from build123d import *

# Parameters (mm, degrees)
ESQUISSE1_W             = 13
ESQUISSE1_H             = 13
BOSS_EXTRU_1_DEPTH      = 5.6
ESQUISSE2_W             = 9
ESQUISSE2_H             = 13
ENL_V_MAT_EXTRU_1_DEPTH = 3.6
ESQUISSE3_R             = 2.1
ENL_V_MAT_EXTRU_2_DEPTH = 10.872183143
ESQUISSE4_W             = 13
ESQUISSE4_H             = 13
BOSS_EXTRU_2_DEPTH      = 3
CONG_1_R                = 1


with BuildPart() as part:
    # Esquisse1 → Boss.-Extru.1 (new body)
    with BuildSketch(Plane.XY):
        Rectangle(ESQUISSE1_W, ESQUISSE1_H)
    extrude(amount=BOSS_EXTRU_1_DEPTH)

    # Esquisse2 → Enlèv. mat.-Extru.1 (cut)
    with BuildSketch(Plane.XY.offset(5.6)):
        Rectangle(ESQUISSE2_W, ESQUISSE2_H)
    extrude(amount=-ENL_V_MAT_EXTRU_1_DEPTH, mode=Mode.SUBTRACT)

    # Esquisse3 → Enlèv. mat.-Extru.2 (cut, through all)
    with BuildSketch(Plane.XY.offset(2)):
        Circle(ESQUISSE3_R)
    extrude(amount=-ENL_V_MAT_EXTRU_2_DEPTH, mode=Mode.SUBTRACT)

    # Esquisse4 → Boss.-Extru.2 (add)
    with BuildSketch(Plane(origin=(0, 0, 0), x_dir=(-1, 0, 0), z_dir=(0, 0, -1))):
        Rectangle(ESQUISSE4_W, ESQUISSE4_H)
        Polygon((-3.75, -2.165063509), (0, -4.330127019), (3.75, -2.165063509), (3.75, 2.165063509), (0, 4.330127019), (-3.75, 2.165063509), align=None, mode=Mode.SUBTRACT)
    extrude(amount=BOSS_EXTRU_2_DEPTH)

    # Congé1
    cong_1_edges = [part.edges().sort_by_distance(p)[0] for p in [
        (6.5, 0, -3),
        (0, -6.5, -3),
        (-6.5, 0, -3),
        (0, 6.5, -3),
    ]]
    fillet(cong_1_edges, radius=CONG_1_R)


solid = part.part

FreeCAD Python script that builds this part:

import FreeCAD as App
import Part
import Sketcher
from FreeCAD import Vector
Q = App.Units.Quantity


def edges_at(feature, points):
    """Names of the edges that pass closest to the given points."""
    edges = feature.Shape.Edges
    near = lambda p: min(range(len(edges)), key=lambda i: edges[i].distToShape(Part.Vertex(*p))[0])
    return sorted({f"Edge{near(p) + 1}" for p in points})

doc = App.newDocument("Part")
body = doc.addObject("PartDesign::Body", "Body")

sketch1 = body.newObject("Sketcher::SketchObject", "Sketch")
sketch1.AttachmentSupport = (doc.getObject("XY_Plane"), [""])
sketch1.MapMode = "FlatFace"
sketch1.addGeometry([
    Part.LineSegment(Vector(-6, 6, 0), Vector(-6, -6, 0)),
    Part.LineSegment(Vector(-6, -6, 0), Vector(6, -6, 0)),
    Part.LineSegment(Vector(6, -6, 0), Vector(6, 6, 0)),
    Part.LineSegment(Vector(6, 6, 0), Vector(-6, 6, 0)),
], False)
sketch1.addConstraint([
    Sketcher.Constraint("Coincident", 0, 2, 1, 1),
    Sketcher.Constraint("Coincident", 1, 2, 2, 1),
    Sketcher.Constraint("Coincident", 2, 2, 3, 1),
    Sketcher.Constraint("Coincident", 3, 2, 0, 1),
    Sketcher.Constraint("Vertical", 0),
    Sketcher.Constraint("Horizontal", 1),
    Sketcher.Constraint("Vertical", 2),
    Sketcher.Constraint("Horizontal", 3),
    Sketcher.Constraint("Symmetric", 0, 2, 2, 2, -1, 1),
    Sketcher.Constraint("Equal", 3, 0),
    Sketcher.Constraint("DistanceX", 1, 1, 1, 2, Q("13 mm")),
])
pad1 = body.newObject("PartDesign::Pad", "Pad")
pad1.Profile = sketch1
pad1.Length = 5.6

sketch2 = body.newObject("Sketcher::SketchObject", "Sketch001")
sketch2.AttachmentSupport = (doc.getObject("XY_Plane"), [""])
sketch2.MapMode = "FlatFace"
sketch2.AttachmentOffset = App.Placement(Vector(0, 0, 5.6), App.Rotation())
sketch2.addGeometry([
    Part.LineSegment(Vector(-4, 6, 0), Vector(-4, -6, 0)),
    Part.LineSegment(Vector(-4, -6, 0), Vector(4, -6, 0)),
    Part.LineSegment(Vector(4, -6, 0), Vector(4, 6, 0)),
    Part.LineSegment(Vector(4, 6, 0), Vector(-4, 6, 0)),
], False)
sketch2.addConstraint([
    Sketcher.Constraint("Coincident", 0, 2, 1, 1),
    Sketcher.Constraint("Coincident", 1, 2, 2, 1),
    Sketcher.Constraint("Coincident", 2, 2, 3, 1),
    Sketcher.Constraint("Coincident", 3, 2, 0, 1),
    Sketcher.Constraint("Vertical", 0),
    Sketcher.Constraint("Horizontal", 1),
    Sketcher.Constraint("Vertical", 2),
    Sketcher.Constraint("Horizontal", 3),
    Sketcher.Constraint("Symmetric", 0, 2, 2, 2, -1, 1),
    Sketcher.Constraint("DistanceX", 1, 1, 1, 2, Q("9 mm")),
    Sketcher.Constraint("DistanceY", 0, 2, 0, 1, Q("13 mm")),
])
pocket1 = body.newObject("PartDesign::Pocket", "Pocket")
pocket1.Profile = sketch2
pocket1.Length = 3.6

sketch3 = body.newObject("Sketcher::SketchObject", "Sketch002")
sketch3.AttachmentSupport = (doc.getObject("XY_Plane"), [""])
sketch3.MapMode = "FlatFace"
sketch3.AttachmentOffset = App.Placement(Vector(0, 0, 2), App.Rotation())
sketch3.addGeometry(Part.Circle(Vector(0, 0, 0), Vector(0, 0, 1), 2.1), False)
sketch3.addConstraint([
    Sketcher.Constraint("Coincident", 0, 3, -1, 1),
    Sketcher.Constraint("Diameter", 0, Q("4.2 mm")),
])
pocket2 = body.newObject("PartDesign::Pocket", "Pocket001")
pocket2.Profile = sketch3
pocket2.Type = "ThroughAll"

sketch4 = body.newObject("Sketcher::SketchObject", "Sketch003")
sketch4.AttachmentSupport = (doc.getObject("XY_Plane"), [""])
sketch4.MapMode = "FlatFace"
sketch4.addGeometry([
    Part.LineSegment(Vector(6.5, 6.5, 0), Vector(6.5, -6.5, 0)),
    Part.LineSegment(Vector(6.5, -6.5, 0), Vector(-6.5, -6.5, 0)),
    Part.LineSegment(Vector(-6.5, -6.5, 0), Vector(-6.5, 6.5, 0)),
    Part.LineSegment(Vector(-6.5, 6.5, 0), Vector(6.5, 6.5, 0)),
    Part.LineSegment(Vector(0, -4.3, 0), Vector(3.8, -2.2, 0)),
    Part.LineSegment(Vector(3.8, -2.2, 0), Vector(3.8, 2.2, 0)),
    Part.LineSegment(Vector(3.8, 2.2, 0), Vector(0, 4.3, 0)),
    Part.LineSegment(Vector(0, 4.3, 0), Vector(-3.8, 2.2, 0)),
    Part.LineSegment(Vector(-3.8, 2.2, 0), Vector(-3.8, -2.2, 0)),
    Part.LineSegment(Vector(-3.8, -2.2, 0), Vector(0, -4.3, 0)),
], False)
sketch4.addConstraint([
    Sketcher.Constraint("Coincident", 0, 2, 1, 1),
    Sketcher.Constraint("Coincident", 1, 2, 2, 1),
    Sketcher.Constraint("Coincident", 2, 2, 3, 1),
    Sketcher.Constraint("Coincident", 3, 2, 0, 1),
    Sketcher.Constraint("Coincident", 4, 2, 5, 1),
    Sketcher.Constraint("Coincident", 5, 2, 6, 1),
    Sketcher.Constraint("Coincident", 6, 2, 7, 1),
    Sketcher.Constraint("Coincident", 7, 2, 8, 1),
    Sketcher.Constraint("Coincident", 8, 2, 9, 1),
    Sketcher.Constraint("Coincident", 9, 2, 4, 1),
    Sketcher.Constraint("Vertical", 0),
    Sketcher.Constraint("Horizontal", 1),
    Sketcher.Constraint("Vertical", 2),
    Sketcher.Constraint("Horizontal", 3),
    Sketcher.Constraint("Vertical", 5),
    Sketcher.Constraint("Vertical", 8),
    Sketcher.Constraint("Symmetric", 0, 2, 2, 2, -1, 1),
    Sketcher.Constraint("Symmetric", 4, 2, 7, 2, -1, 1),
    Sketcher.Constraint("Symmetric", 6, 2, 9, 2, -1, 1),
    Sketcher.Constraint("PointOnObject", 6, 2, -2),
    Sketcher.Constraint("Parallel", 6, 9),
    Sketcher.Constraint("Horizontal", 5, 2, 7, 2),
    Sketcher.Constraint("Equal", 3, 0),
    Sketcher.Constraint("DistanceX", 1, 2, 1, 1, Q("13 mm")),
    Sketcher.Constraint("Angle", 4, Q("30 deg")),
    Sketcher.Constraint("DistanceX", 7, 2, 5, 2, Q("7.5 mm")),
    Sketcher.Constraint("DistanceY", 5, 1, 5, 2, Q("4.330127 mm")),
])
pad2 = body.newObject("PartDesign::Pad", "Pad001")
pad2.Profile = sketch4
pad2.Length = 3
pad2.Reversed = True
doc.recompute()

fillet = body.newObject("PartDesign::Fillet", "Fillet")
fillet.Base = (pad2, edges_at(pad2, [
    (6.5, 0, -3),
    (0, -6.5, -3),
    (-6.5, 0, -3),
    (0, 6.5, -3),
]))
fillet.Radius = 1

doc.recompute()
